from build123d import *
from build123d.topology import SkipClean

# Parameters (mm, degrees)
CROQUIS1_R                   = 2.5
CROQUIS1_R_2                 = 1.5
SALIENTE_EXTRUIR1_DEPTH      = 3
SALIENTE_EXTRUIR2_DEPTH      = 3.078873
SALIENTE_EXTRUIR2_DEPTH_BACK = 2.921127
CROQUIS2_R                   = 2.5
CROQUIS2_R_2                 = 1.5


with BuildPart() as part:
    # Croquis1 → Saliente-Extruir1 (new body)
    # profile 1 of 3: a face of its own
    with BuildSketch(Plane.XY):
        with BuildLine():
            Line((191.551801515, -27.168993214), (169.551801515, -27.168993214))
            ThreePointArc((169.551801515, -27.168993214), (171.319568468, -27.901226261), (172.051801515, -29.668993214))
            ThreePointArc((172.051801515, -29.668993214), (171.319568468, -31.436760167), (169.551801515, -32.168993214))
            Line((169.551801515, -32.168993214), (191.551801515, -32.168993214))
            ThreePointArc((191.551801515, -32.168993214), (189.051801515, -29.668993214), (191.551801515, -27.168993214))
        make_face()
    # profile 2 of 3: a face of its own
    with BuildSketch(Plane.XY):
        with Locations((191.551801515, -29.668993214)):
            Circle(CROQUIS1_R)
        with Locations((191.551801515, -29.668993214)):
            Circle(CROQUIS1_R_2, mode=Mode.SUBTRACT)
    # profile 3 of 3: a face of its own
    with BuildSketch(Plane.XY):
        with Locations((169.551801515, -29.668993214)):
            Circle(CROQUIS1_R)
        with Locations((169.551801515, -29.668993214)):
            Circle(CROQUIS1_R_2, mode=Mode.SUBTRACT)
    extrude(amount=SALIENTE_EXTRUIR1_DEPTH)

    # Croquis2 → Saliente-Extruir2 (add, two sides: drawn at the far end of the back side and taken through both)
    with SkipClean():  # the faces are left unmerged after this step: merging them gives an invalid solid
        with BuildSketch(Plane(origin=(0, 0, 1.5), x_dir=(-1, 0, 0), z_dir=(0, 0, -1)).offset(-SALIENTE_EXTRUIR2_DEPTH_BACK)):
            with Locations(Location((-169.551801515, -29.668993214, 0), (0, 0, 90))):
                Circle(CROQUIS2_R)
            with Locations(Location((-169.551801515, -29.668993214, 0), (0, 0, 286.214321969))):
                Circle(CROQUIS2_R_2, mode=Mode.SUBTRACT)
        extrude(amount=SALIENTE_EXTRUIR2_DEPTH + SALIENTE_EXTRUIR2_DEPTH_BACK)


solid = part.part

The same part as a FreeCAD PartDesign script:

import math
import FreeCAD as App
import Part
import Sketcher

doc = App.newDocument("Part")
params = doc.addObject("Spreadsheet::Sheet", "Params")
for row, (alias, value) in enumerate([
    ("sketch1_diameter", "3 mm"),
    ("sketch1_radius", "2.5 mm"),
    ("sketch1_width", "22 mm"),
    ("pad1_length", "3 mm"),
    ("sketch2_diameter", "5 mm"),
    ("sketch2_diameter2", "3 mm"),
    ("pad2_length", "3.078873 mm"),
    ("pad2_length2", "2.921127 mm"),
], start=1):
    params.set(f"A{row}", alias)
    params.set(f"B{row}", "=" + value)
    params.setAlias(f"B{row}", alias)

body = doc.addObject("PartDesign::Body", "Body")

sketch1 = body.newObject("Sketcher::SketchObject", "Sketch")
sketch1.AttachmentSupport = (doc.getObject("XY_Plane"), [""])
sketch1.MapMode = "FlatFace"
sketch1.addGeometry(Part.LineSegment(App.Vector(191.551802, -27.168993, 0), App.Vector(169.551802, -27.168993, 0)), False)
sketch1.addGeometry(Part.ArcOfCircle(Part.Circle(App.Vector(169.551802, -29.668993, 0), App.Vector(0, 0, 1), 2.5), math.radians(90), math.radians(270)), False)
sketch1.addGeometry(Part.LineSegment(App.Vector(169.551802, -32.168993, 0), App.Vector(191.551802, -32.168993, 0)), False)
sketch1.addGeometry(Part.ArcOfCircle(Part.Circle(App.Vector(191.551802, -29.668993, 0), App.Vector(0, 0, 1), 2.5), math.radians(-90), math.radians(90)), False)
sketch1.addGeometry(Part.Circle(App.Vector(169.551802, -29.668993, 0), App.Vector(0, 0, 1), 1.5), False)
sketch1.addGeometry(Part.Circle(App.Vector(191.551802, -29.668993, 0), App.Vector(0, 0, 1), 1.5), False)
sketch1.addConstraint(Sketcher.Constraint("Tangent", 0, 2, 1, 1))
sketch1.addConstraint(Sketcher.Constraint("Tangent", 1, 2, 2, 1))
sketch1.addConstraint(Sketcher.Constraint("Tangent", 2, 2, 3, 1))
sketch1.addConstraint(Sketcher.Constraint("Tangent", 3, 2, 0, 1))
sketch1.addConstraint(Sketcher.Constraint("Horizontal", 0))
sketch1.addConstraint(Sketcher.Constraint("Horizontal", 2))
sketch1.addConstraint(Sketcher.Constraint("Coincident", 4, 3, 1, 3))
sketch1.addConstraint(Sketcher.Constraint("Coincident", 5, 3, 3, 3))
sketch1.addConstraint(Sketcher.Constraint("Equal", 4, 5))
sketch1.addConstraint(Sketcher.Constraint("Diameter", 4, 3.0))
sketch1.addConstraint(Sketcher.Constraint("Radius", 1, 2.5))
sketch1.addConstraint(Sketcher.Constraint("DistanceX", 0, 2, 0, 1, 22.0))
sketch1.addConstraint(Sketcher.Constraint("DistanceX", -1, 1, 1, 3, 169.551802))
sketch1.addConstraint(Sketcher.Constraint("DistanceY", 1, 3, -1, 1, 29.668993))
sketch1.setExpression("Constraints[9]", "Params.sketch1_diameter")
sketch1.setExpression("Constraints[10]", "Params.sketch1_radius")
sketch1.setExpression("Constraints[11]", "Params.sketch1_width")
pad1 = body.newObject("PartDesign::Pad", "Pad")
pad1.Profile = sketch1
pad1.setExpression("Length", "Params.pad1_length")

sketch2 = body.newObject("Sketcher::SketchObject", "Sketch001")
sketch2.AttachmentSupport = (doc.getObject("XY_Plane"), [""])
sketch2.MapMode = "FlatFace"
sketch2.AttachmentOffset = App.Placement(App.Vector(0, 0, 1.5), App.Rotation())
sketch2.addGeometry(Part.Circle(App.Vector(169.551802, -29.668993, 0), App.Vector(0, 0, 1), 2.5), False)
sketch2.addGeometry(Part.Circle(App.Vector(169.551802, -29.668993, 0), App.Vector(0, 0, 1), 1.5), False)
sketch2.addConstraint(Sketcher.Constraint("Coincident", 1, 3, 0, 3))
sketch2.addConstraint(Sketcher.Constraint("Diameter", 0, 5.0))
sketch2.addConstraint(Sketcher.Constraint("Diameter", 1, 3.0))
sketch2.addConstraint(Sketcher.Constraint("DistanceX", -1, 1, 0, 3, 169.551802))
sketch2.addConstraint(Sketcher.Constraint("DistanceY", 0, 3, -1, 1, 29.668993))
sketch2.setExpression("Constraints[1]", "Params.sketch2_diameter")
sketch2.setExpression("Constraints[2]", "Params.sketch2_diameter2")
pad2 = body.newObject("PartDesign::Pad", "Pad001")
pad2.Profile = sketch2
pad2.Type = "TwoLengths"
pad2.setExpression("Length", "Params.pad2_length")
pad2.setExpression("Length2", "Params.pad2_length2")
pad2.Reversed = True

doc.recompute()
